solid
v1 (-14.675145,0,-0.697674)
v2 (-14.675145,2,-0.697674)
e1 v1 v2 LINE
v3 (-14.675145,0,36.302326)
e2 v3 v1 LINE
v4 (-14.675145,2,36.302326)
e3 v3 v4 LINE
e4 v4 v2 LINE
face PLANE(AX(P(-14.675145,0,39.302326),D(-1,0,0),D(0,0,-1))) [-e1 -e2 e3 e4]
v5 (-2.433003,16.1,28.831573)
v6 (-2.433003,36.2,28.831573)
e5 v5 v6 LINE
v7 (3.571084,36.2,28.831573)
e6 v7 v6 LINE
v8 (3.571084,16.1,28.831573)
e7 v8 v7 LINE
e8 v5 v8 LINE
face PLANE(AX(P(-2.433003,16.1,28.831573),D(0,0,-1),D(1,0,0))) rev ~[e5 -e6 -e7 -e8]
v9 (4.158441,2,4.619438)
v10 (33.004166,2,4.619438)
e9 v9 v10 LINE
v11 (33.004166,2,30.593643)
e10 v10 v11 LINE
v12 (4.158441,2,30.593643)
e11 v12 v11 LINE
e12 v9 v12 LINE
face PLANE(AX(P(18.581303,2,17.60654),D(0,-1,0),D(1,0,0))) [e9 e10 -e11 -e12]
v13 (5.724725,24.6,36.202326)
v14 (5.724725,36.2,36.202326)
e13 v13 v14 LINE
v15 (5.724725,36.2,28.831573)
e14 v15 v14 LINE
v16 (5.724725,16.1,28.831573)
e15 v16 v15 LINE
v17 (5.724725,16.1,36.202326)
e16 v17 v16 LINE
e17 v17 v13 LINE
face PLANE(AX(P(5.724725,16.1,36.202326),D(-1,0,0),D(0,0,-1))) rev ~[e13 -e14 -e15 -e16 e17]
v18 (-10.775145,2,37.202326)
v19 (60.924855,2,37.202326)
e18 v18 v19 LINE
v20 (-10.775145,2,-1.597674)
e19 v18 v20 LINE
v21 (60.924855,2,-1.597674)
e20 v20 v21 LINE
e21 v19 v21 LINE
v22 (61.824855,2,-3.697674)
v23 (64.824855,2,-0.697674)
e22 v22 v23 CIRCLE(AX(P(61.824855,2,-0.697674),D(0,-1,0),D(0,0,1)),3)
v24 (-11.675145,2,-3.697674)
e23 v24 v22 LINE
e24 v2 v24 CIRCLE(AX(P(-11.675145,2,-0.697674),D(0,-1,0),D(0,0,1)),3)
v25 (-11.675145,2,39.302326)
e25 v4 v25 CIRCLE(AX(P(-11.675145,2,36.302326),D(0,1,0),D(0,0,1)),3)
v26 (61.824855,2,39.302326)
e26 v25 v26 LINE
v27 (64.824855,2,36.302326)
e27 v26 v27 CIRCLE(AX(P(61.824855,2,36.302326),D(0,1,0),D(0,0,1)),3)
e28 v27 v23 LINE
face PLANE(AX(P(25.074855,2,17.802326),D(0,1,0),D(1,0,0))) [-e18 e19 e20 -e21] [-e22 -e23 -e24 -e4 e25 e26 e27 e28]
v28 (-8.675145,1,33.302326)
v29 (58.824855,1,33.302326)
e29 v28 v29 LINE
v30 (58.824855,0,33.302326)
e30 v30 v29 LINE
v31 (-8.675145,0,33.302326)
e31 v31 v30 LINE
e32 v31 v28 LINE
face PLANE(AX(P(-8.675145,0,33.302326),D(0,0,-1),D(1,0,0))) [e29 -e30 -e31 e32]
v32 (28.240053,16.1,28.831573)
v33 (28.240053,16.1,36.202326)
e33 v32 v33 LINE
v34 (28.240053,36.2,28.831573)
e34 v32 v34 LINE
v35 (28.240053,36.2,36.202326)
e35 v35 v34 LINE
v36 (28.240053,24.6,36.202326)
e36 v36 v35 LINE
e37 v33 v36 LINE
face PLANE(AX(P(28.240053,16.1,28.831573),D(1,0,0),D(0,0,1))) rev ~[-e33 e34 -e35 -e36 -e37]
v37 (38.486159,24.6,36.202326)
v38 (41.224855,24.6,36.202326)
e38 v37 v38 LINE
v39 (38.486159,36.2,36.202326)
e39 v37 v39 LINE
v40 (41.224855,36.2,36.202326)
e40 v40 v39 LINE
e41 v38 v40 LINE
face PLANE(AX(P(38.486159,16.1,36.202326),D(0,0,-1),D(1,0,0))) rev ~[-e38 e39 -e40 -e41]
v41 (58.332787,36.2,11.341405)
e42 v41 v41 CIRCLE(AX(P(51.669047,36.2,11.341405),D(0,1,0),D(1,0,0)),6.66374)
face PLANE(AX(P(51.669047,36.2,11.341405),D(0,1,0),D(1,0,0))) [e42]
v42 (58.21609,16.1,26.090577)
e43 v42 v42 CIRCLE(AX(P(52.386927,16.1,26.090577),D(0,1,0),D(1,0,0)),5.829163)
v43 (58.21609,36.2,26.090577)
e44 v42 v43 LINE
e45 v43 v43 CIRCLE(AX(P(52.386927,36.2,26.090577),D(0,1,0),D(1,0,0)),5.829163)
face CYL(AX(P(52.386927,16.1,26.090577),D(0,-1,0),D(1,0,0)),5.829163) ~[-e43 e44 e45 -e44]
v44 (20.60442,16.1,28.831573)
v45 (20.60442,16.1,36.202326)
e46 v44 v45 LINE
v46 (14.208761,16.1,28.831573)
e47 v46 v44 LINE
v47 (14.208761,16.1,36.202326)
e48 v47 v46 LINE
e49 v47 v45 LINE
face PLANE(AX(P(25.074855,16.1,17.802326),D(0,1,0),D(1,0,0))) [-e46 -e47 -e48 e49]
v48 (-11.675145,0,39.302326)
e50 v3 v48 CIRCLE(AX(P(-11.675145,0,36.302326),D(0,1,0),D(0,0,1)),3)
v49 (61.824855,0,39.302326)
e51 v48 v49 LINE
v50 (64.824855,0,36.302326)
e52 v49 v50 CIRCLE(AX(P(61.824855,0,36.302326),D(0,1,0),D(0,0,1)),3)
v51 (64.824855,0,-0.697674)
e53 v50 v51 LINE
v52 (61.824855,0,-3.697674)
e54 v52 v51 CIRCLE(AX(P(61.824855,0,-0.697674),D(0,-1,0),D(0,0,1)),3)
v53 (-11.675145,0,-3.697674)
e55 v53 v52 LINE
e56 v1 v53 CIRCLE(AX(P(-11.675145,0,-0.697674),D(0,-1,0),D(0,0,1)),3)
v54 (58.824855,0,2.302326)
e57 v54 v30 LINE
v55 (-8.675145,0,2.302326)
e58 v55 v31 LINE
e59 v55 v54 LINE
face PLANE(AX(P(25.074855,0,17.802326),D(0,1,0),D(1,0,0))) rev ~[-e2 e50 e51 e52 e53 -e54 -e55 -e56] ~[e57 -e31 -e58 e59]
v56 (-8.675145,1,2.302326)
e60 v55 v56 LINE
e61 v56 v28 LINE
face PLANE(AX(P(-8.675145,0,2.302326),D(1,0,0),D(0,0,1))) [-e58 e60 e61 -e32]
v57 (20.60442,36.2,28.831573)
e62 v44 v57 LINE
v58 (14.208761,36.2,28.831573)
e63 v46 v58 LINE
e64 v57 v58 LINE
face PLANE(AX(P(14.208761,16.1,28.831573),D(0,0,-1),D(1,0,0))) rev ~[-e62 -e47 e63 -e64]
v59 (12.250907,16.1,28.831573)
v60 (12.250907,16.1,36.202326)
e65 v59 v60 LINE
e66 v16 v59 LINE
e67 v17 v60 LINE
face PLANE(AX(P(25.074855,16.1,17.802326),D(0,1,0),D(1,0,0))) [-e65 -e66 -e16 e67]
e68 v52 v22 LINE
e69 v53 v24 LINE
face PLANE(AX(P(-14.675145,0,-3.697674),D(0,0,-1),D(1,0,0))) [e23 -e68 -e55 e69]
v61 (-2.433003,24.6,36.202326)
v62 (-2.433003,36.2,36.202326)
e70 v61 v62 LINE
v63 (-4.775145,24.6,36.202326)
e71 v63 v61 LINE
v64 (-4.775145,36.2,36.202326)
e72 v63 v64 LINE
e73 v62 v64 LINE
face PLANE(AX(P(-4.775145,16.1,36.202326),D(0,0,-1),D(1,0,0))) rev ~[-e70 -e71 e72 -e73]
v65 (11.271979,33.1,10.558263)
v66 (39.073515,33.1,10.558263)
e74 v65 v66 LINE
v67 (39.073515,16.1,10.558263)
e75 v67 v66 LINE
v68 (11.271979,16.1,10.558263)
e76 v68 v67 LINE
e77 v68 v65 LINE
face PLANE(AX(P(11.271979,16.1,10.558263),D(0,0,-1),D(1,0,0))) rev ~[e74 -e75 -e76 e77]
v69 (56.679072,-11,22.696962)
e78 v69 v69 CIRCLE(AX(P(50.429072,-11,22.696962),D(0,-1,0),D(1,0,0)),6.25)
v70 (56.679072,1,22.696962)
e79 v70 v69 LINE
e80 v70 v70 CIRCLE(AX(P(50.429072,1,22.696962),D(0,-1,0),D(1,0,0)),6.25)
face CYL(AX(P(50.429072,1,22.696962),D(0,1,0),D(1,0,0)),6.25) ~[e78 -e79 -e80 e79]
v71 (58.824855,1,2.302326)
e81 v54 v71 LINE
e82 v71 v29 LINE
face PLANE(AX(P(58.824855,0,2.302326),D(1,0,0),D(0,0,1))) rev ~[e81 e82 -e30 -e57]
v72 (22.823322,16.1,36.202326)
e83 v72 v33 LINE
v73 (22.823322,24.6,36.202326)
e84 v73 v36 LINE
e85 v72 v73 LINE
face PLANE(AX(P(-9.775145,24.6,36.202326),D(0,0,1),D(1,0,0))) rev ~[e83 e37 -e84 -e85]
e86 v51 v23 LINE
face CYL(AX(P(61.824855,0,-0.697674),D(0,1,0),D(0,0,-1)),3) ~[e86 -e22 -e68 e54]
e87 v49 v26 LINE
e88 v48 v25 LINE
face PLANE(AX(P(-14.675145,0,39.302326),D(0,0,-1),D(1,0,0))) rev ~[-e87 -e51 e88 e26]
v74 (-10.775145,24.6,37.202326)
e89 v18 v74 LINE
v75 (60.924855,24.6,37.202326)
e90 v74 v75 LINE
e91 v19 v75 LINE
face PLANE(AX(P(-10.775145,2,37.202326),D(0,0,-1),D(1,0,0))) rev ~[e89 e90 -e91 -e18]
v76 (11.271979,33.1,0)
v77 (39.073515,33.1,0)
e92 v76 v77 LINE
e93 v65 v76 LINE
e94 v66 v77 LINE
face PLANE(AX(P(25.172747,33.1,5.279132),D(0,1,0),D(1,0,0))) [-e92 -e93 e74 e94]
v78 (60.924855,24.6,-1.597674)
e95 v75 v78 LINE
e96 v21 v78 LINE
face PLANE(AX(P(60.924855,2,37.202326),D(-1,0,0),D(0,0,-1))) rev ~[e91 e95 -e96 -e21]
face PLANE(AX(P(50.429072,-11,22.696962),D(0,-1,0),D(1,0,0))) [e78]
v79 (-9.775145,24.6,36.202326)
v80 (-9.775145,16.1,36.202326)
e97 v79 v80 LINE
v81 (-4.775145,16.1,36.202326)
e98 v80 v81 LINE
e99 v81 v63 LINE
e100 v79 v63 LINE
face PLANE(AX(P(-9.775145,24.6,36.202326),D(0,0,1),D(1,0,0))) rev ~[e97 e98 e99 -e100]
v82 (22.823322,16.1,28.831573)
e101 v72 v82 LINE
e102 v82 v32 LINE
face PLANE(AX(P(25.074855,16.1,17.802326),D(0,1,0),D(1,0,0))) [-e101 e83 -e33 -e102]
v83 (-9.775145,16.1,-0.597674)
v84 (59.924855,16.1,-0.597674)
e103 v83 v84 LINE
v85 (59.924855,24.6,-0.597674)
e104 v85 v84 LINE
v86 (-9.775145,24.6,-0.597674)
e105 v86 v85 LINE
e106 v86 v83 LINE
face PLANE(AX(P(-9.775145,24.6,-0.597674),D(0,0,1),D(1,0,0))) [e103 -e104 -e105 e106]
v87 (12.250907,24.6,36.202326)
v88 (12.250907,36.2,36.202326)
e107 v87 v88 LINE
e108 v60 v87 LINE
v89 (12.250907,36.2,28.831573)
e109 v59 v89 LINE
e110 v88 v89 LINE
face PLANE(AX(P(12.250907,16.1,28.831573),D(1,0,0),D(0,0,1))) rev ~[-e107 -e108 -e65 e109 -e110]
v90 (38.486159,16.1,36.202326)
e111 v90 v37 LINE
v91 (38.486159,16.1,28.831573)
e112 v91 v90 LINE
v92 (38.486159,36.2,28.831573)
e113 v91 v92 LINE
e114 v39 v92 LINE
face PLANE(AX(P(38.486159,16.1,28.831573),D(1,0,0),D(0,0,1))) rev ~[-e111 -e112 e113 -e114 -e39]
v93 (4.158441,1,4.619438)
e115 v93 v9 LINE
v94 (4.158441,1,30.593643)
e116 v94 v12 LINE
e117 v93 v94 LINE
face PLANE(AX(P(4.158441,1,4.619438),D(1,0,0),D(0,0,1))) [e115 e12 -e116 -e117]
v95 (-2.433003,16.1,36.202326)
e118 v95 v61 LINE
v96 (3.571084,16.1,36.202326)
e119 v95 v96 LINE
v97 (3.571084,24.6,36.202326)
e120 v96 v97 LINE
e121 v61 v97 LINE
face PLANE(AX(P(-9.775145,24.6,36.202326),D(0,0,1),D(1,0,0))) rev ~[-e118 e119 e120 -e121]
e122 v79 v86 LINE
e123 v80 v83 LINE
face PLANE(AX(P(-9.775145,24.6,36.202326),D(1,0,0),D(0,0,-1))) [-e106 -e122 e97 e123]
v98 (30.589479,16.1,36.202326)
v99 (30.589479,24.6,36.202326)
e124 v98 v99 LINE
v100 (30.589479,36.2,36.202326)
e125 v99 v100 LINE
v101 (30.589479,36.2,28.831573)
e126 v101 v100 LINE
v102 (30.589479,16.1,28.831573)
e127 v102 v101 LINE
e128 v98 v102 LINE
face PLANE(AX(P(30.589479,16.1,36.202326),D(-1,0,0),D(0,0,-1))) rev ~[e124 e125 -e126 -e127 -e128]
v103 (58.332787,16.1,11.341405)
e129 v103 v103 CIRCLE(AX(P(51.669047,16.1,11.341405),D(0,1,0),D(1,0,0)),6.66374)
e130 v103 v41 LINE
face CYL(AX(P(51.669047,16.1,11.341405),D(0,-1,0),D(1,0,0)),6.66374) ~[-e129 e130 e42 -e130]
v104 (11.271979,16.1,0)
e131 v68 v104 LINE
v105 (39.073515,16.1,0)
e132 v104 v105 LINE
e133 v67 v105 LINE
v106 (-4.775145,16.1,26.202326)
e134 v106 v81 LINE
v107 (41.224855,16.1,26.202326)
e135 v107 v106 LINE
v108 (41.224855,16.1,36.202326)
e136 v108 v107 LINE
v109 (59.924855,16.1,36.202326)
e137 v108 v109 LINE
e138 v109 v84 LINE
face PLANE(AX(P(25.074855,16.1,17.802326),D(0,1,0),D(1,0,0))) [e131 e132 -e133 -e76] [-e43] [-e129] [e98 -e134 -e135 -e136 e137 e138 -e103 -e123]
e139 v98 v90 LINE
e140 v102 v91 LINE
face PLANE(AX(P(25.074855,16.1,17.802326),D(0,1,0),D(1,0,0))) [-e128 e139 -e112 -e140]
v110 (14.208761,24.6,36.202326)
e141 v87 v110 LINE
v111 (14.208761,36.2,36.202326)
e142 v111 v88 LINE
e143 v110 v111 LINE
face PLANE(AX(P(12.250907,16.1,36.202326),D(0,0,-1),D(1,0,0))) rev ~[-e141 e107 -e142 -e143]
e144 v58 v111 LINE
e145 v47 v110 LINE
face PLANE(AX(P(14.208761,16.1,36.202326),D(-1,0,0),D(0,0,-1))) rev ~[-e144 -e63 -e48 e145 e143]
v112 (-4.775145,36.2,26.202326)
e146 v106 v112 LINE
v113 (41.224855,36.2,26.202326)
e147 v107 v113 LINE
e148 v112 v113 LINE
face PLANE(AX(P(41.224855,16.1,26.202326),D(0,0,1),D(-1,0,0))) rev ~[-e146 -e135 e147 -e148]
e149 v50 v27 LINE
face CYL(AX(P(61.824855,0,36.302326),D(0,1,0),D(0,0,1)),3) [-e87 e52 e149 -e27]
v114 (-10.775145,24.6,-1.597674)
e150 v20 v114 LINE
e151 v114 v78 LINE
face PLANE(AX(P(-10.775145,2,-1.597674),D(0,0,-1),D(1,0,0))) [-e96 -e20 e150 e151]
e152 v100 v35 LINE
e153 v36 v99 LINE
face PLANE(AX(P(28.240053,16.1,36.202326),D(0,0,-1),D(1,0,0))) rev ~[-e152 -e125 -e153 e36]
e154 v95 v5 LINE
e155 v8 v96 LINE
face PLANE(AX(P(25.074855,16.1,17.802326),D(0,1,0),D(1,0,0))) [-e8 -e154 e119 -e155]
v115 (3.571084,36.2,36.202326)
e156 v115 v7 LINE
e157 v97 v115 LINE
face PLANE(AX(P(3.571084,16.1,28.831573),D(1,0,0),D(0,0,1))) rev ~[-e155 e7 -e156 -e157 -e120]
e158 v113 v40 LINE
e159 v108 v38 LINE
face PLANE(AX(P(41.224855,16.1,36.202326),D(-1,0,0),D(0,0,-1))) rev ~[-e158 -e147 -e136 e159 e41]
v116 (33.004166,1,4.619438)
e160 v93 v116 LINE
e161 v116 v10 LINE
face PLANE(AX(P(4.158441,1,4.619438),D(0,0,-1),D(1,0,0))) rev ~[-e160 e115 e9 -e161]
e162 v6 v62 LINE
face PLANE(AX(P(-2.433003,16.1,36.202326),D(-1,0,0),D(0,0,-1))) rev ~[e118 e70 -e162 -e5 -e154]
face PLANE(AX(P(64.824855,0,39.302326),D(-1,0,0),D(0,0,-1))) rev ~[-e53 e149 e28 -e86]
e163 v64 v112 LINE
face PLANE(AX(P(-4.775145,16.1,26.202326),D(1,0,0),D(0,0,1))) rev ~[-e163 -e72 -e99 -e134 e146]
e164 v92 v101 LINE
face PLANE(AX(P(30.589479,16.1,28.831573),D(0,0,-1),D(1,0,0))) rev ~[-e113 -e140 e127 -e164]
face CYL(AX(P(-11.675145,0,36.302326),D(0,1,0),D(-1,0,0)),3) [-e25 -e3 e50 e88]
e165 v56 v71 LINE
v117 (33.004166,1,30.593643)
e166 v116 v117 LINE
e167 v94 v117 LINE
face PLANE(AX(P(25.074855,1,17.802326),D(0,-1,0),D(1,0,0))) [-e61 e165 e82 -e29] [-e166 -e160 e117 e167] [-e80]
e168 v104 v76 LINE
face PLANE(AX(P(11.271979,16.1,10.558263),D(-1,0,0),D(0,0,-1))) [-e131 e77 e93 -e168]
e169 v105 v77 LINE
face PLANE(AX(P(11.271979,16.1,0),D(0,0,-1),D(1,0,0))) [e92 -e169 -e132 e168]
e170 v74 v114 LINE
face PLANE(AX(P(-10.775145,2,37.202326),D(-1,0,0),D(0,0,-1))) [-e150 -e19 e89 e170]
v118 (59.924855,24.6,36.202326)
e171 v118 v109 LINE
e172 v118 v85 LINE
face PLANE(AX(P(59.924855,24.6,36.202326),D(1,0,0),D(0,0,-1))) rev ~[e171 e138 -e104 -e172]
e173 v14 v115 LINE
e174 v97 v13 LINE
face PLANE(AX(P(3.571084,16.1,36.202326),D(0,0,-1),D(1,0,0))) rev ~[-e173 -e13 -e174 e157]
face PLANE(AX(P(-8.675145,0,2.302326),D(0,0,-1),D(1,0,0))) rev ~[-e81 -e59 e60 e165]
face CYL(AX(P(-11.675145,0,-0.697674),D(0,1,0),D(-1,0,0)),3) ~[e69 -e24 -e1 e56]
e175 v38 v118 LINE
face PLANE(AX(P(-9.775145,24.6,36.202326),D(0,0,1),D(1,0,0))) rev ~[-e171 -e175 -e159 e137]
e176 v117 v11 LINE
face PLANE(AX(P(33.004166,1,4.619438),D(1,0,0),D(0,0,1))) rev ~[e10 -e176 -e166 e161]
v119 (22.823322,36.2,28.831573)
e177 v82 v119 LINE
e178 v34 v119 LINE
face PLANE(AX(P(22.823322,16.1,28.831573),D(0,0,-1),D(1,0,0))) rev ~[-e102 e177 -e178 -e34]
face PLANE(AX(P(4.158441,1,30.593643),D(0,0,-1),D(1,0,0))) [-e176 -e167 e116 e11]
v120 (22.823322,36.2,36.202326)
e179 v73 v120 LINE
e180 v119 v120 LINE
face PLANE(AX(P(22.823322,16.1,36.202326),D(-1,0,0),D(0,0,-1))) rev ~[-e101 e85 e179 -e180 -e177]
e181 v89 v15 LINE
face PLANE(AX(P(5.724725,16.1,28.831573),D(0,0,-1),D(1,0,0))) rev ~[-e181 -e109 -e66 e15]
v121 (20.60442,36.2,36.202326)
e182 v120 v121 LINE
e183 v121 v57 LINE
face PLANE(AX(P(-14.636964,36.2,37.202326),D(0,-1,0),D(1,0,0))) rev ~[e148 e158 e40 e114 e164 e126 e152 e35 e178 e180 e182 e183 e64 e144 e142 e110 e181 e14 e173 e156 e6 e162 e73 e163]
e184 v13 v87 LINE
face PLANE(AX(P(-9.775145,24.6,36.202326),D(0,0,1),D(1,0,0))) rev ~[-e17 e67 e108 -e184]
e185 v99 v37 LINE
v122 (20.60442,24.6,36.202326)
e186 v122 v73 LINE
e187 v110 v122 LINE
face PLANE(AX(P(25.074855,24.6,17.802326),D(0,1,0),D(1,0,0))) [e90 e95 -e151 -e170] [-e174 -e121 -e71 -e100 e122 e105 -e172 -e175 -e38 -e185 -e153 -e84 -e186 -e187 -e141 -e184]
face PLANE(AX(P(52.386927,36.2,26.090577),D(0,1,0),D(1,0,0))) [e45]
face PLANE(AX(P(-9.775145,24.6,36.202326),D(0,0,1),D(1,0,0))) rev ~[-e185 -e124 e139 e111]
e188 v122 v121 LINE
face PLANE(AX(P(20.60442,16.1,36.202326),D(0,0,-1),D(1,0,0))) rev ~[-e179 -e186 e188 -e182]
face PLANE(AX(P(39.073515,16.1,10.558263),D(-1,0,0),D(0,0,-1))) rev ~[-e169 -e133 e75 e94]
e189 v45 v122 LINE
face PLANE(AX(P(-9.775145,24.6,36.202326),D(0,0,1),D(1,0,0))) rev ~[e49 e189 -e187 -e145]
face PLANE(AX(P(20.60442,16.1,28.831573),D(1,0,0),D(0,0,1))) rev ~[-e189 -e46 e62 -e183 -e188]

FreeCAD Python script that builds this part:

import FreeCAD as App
import Part
import Sketcher
from FreeCAD import Vector
Q = App.Units.Quantity


def edges_at(feature, points):
    """Names of the edges that pass closest to the given points."""
    edges = feature.Shape.Edges
    near = lambda p: min(range(len(edges)), key=lambda i: edges[i].distToShape(Part.Vertex(*p))[0])
    return sorted({f"Edge{near(p) + 1}" for p in points})

doc = App.newDocument("Part")
params = doc.addObject("Spreadsheet::Sheet", "Params")
for row, (alias, value) in enumerate([
    ("sketch1_height", "43 mm"),
    ("sketch1_width", "79.5 mm"),
    ("pad1_length", "2 mm"),
    ("sketch2_width", "71.7 mm"),
    ("sketch2_height", "38.8 mm"),
    ("pad2_length", "22.6 mm"),
    ("sketch3_width", "69.7 mm"),
    ("sketch3_height", "36.8 mm"),
    ("pocket1_length", "8.5 mm"),
    ("sketch4_width", "46 mm"),
    ("sketch4_height", "10 mm"),
    ("pad3_length", "22.6 mm"),
    ("pocket2_length", "22.6 mm"),
    ("pad4_length", "20.1 mm"),
    ("fillet_radius", "3 mm"),
    ("pad5_length", "17 mm"),
    ("sketch8_height", "31 mm"),
    ("sketch8_width", "67.5 mm"),
    ("pocket3_length", "1 mm"),
    ("pocket4_length", "1 mm"),
    ("sketch10_diameter", "12.5 mm"),
    ("pad6_length", "12 mm"),
], start=1):
    params.set(f"A{row}", alias)
    params.set(f"B{row}", "=" + value)
    params.setAlias(f"B{row}", alias)

body = doc.addObject("PartDesign::Body", "Body")

sketch1 = body.newObject("Sketcher::SketchObject", "Sketch")
sketch1.AttachmentSupport = (doc.getObject("XZ_Plane"), [""])
sketch1.MapMode = "FlatFace"
sketch1.addGeometry(Part.LineSegment(Vector(-15, -4, 0), Vector(-15, 39, 0)), False)
sketch1.addGeometry(Part.LineSegment(Vector(-15, 39, 0), Vector(65, 39, 0)), False)
sketch1.addGeometry(Part.LineSegment(Vector(65, 39, 0), Vector(65, -4, 0)), False)
sketch1.addGeometry(Part.LineSegment(Vector(65, -4, 0), Vector(-15, -4, 0)), False)
sketch1.addConstraint(Sketcher.Constraint("Coincident", 0, 2, 1, 1))
sketch1.addConstraint(Sketcher.Constraint("Coincident", 1, 2, 2, 1))
sketch1.addConstraint(Sketcher.Constraint("Coincident", 2, 2, 3, 1))
sketch1.addConstraint(Sketcher.Constraint("Coincident", 3, 2, 0, 1))
sketch1.addConstraint(Sketcher.Constraint("Vertical", 0))
sketch1.addConstraint(Sketcher.Constraint("Horizontal", 1))
sketch1.addConstraint(Sketcher.Constraint("Vertical", 2))
sketch1.addConstraint(Sketcher.Constraint("Horizontal", 3))
sketch1.addConstraint(Sketcher.Constraint("DistanceY", 0, 1, 0, 2, Q("43 mm")))
sketch1.addConstraint(Sketcher.Constraint("DistanceX", 1, 1, 1, 2, Q("79.5 mm")))
sketch1.addConstraint(Sketcher.Constraint("DistanceX", 0, 2, -1, 1, Q("14.675145 mm")))
sketch1.addConstraint(Sketcher.Constraint("DistanceY", -1, 1, 0, 2, Q("39.302326 mm")))
sketch1.setExpression("Constraints[8]", "Params.sketch1_height")
sketch1.setExpression("Constraints[9]", "Params.sketch1_width")
pad1 = body.newObject("PartDesign::Pad", "Pad")
pad1.Profile = sketch1
pad1.setExpression("Length", "Params.pad1_length")
pad1.Reversed = True

sketch2 = body.newObject("Sketcher::SketchObject", "Sketch001")
sketch2.AttachmentSupport = (doc.getObject("XZ_Plane"), [""])
sketch2.MapMode = "FlatFace"
sketch2.AttachmentOffset = App.Placement(Vector(0, 0, -2), App.Rotation())
sketch2.addGeometry(Part.LineSegment(Vector(-11, -2, 0), Vector(-11, 37, 0)), False)
sketch2.addGeometry(Part.LineSegment(Vector(-11, 37, 0), Vector(61, 37, 0)), False)
sketch2.addGeometry(Part.LineSegment(Vector(61, 37, 0), Vector(61, -2, 0)), False)
sketch2.addGeometry(Part.LineSegment(Vector(61, -2, 0), Vector(-11, -2, 0)), False)
sketch2.addConstraint(Sketcher.Constraint("Coincident", 0, 2, 1, 1))
sketch2.addConstraint(Sketcher.Constraint("Coincident", 1, 2, 2, 1))
sketch2.addConstraint(Sketcher.Constraint("Coincident", 2, 2, 3, 1))
sketch2.addConstraint(Sketcher.Constraint("Coincident", 3, 2, 0, 1))
sketch2.addConstraint(Sketcher.Constraint("Vertical", 0))
sketch2.addConstraint(Sketcher.Constraint("Horizontal", 1))
sketch2.addConstraint(Sketcher.Constraint("Vertical", 2))
sketch2.addConstraint(Sketcher.Constraint("Horizontal", 3))
sketch2.addConstraint(Sketcher.Constraint("DistanceX", 1, 1, 1, 2, Q("71.7 mm")))
sketch2.addConstraint(Sketcher.Constraint("DistanceY", 0, 1, 0, 2, Q("38.8 mm")))
sketch2.addConstraint(Sketcher.Constraint("DistanceX", 0, 2, -1, 1, Q("10.775145 mm")))
sketch2.addConstraint(Sketcher.Constraint("DistanceY", -1, 1, 0, 2, Q("37.202326 mm")))
sketch2.setExpression("Constraints[8]", "Params.sketch2_width")
sketch2.setExpression("Constraints[9]", "Params.sketch2_height")
pad2 = body.newObject("PartDesign::Pad", "Pad001")
pad2.Profile = sketch2
pad2.setExpression("Length", "Params.pad2_length")
pad2.Reversed = True

sketch3 = body.newObject("Sketcher::SketchObject", "Sketch002")
sketch3.AttachmentSupport = (doc.getObject("XZ_Plane"), [""])
sketch3.MapMode = "FlatFace"
sketch3.AttachmentOffset = App.Placement(Vector(0, 0, -24.6), App.Rotation())
sketch3.addGeometry(Part.LineSegment(Vector(-10, -1, 0), Vector(-10, 36, 0)), False)
sketch3.addGeometry(Part.LineSegment(Vector(-10, 36, 0), Vector(60, 36, 0)), False)
sketch3.addGeometry(Part.LineSegment(Vector(60, 36, 0), Vector(60, -1, 0)), False)
sketch3.addGeometry(Part.LineSegment(Vector(60, -1, 0), Vector(-10, -1, 0)), False)
sketch3.addConstraint(Sketcher.Constraint("Coincident", 0, 2, 1, 1))
sketch3.addConstraint(Sketcher.Constraint("Coincident", 1, 2, 2, 1))
sketch3.addConstraint(Sketcher.Constraint("Coincident", 2, 2, 3, 1))
sketch3.addConstraint(Sketcher.Constraint("Coincident", 3, 2, 0, 1))
sketch3.addConstraint(Sketcher.Constraint("Vertical", 0))
sketch3.addConstraint(Sketcher.Constraint("Horizontal", 1))
sketch3.addConstraint(Sketcher.Constraint("Vertical", 2))
sketch3.addConstraint(Sketcher.Constraint("Horizontal", 3))
sketch3.addConstraint(Sketcher.Constraint("DistanceX", 1, 1, 1, 2, Q("69.7 mm")))
sketch3.addConstraint(Sketcher.Constraint("DistanceY", 0, 1, 0, 2, Q("36.8 mm")))
sketch3.addConstraint(Sketcher.Constraint("DistanceX", 0, 2, -1, 1, Q("9.775145 mm")))
sketch3.addConstraint(Sketcher.Constraint("DistanceY", -1, 1, 0, 2, Q("36.202326 mm")))
sketch3.setExpression("Constraints[8]", "Params.sketch3_width")
sketch3.setExpression("Constraints[9]", "Params.sketch3_height")
pocket1 = body.newObject("PartDesign::Pocket", "Pocket")
pocket1.Profile = sketch3
pocket1.setExpression("Length", "Params.pocket1_length")
pocket1.Reversed = True

sketch4 = body.newObject("Sketcher::SketchObject", "Sketch003")
sketch4.AttachmentSupport = (doc.getObject("XZ_Plane"), [""])
sketch4.MapMode = "FlatFace"
sketch4.AttachmentOffset = App.Placement(Vector(0, 0, -16.1), App.Rotation())
sketch4.addGeometry(Part.LineSegment(Vector(41.2, 26.2, 0), Vector(-4.8, 26.2, 0)), False)
sketch4.addGeometry(Part.LineSegment(Vector(-4.8, 26.2, 0), Vector(-4.8, 36.2, 0)), False)
sketch4.addGeometry(Part.LineSegment(Vector(-4.8, 36.2, 0), Vector(-2.4, 36.2, 0)), False)
sketch4.addGeometry(Part.LineSegment(Vector(-2.4, 36.2, 0), Vector(-2.4, 28.8, 0)), False)
sketch4.addGeometry(Part.LineSegment(Vector(-2.4, 28.8, 0), Vector(3.6, 28.8, 0)), False)
sketch4.addGeometry(Part.LineSegment(Vector(3.6, 28.8, 0), Vector(3.6, 36.2, 0)), False)
sketch4.addGeometry(Part.LineSegment(Vector(3.6, 36.2, 0), Vector(5.7, 36.2, 0)), False)
sketch4.addGeometry(Part.LineSegment(Vector(5.7, 36.2, 0), Vector(5.7, 28.8, 0)), False)
sketch4.addGeometry(Part.LineSegment(Vector(5.7, 28.8, 0), Vector(12.3, 28.8, 0)), False)
sketch4.addGeometry(Part.LineSegment(Vector(12.3, 28.8, 0), Vector(12.3, 36.2, 0)), False)
sketch4.addGeometry(Part.LineSegment(Vector(12.3, 36.2, 0), Vector(14.2, 36.2, 0)), False)
sketch4.addGeometry(Part.LineSegment(Vector(14.2, 36.2, 0), Vector(14.2, 28.8, 0)), False)
sketch4.addGeometry(Part.LineSegment(Vector(14.2, 28.8, 0), Vector(20.6, 28.8, 0)), False)
sketch4.addGeometry(Part.LineSegment(Vector(20.6, 28.8, 0), Vector(20.6, 36.2, 0)), False)
sketch4.addGeometry(Part.LineSegment(Vector(20.6, 36.2, 0), Vector(22.8, 36.2, 0)), False)
sketch4.addGeometry(Part.LineSegment(Vector(22.8, 36.2, 0), Vector(22.8, 28.8, 0)), False)
sketch4.addGeometry(Part.LineSegment(Vector(22.8, 28.8, 0), Vector(28.2, 28.8, 0)), False)
sketch4.addGeometry(Part.LineSegment(Vector(28.2, 28.8, 0), Vector(28.2, 36.2, 0)), False)
sketch4.addGeometry(Part.LineSegment(Vector(28.2, 36.2, 0), Vector(30.6, 36.2, 0)), False)
sketch4.addGeometry(Part.LineSegment(Vector(30.6, 36.2, 0), Vector(30.6, 28.8, 0)), False)
sketch4.addGeometry(Part.LineSegment(Vector(30.6, 28.8, 0), Vector(38.5, 28.8, 0)), False)
sketch4.addGeometry(Part.LineSegment(Vector(38.5, 28.8, 0), Vector(38.5, 36.2, 0)), False)
sketch4.addGeometry(Part.LineSegment(Vector(38.5, 36.2, 0), Vector(41.2, 36.2, 0)), False)
sketch4.addGeometry(Part.LineSegment(Vector(41.2, 36.2, 0), Vector(41.2, 26.2, 0)), False)
sketch4.addConstraint(Sketcher.Constraint("Coincident", 0, 2, 1, 1))
sketch4.addConstraint(Sketcher.Constraint("Coincident", 1, 2, 2, 1))
sketch4.addConstraint(Sketcher.Constraint("Coincident", 2, 2, 3, 1))
sketch4.addConstraint(Sketcher.Constraint("Coincident", 3, 2, 4, 1))
sketch4.addConstraint(Sketcher.Constraint("Coincident", 4, 2, 5, 1))
sketch4.addConstraint(Sketcher.Constraint("Coincident", 5, 2, 6, 1))
sketch4.addConstraint(Sketcher.Constraint("Coincident", 6, 2, 7, 1))
sketch4.addConstraint(Sketcher.Constraint("Coincident", 7, 2, 8, 1))
sketch4.addConstraint(Sketcher.Constraint("Coincident", 8, 2, 9, 1))
sketch4.addConstraint(Sketcher.Constraint("Coincident", 9, 2, 10, 1))
sketch4.addConstraint(Sketcher.Constraint("Coincident", 10, 2, 11, 1))
sketch4.addConstraint(Sketcher.Constraint("Coincident", 11, 2, 12, 1))
sketch4.addConstraint(Sketcher.Constraint("Coincident", 12, 2, 13, 1))
sketch4.addConstraint(Sketcher.Constraint("Coincident", 13, 2, 14, 1))
sketch4.addConstraint(Sketcher.Constraint("Coincident", 14, 2, 15, 1))
sketch4.addConstraint(Sketcher.Constraint("Coincident", 15, 2, 16, 1))
sketch4.addConstraint(Sketcher.Constraint("Coincident", 16, 2, 17, 1))
sketch4.addConstraint(Sketcher.Constraint("Coincident", 17, 2, 18, 1))
sketch4.addConstraint(Sketcher.Constraint("Coincident", 18, 2, 19, 1))
sketch4.addConstraint(Sketcher.Constraint("Coincident", 19, 2, 20, 1))
sketch4.addConstraint(Sketcher.Constraint("Coincident", 20, 2, 21, 1))
sketch4.addConstraint(Sketcher.Constraint("Coincident", 21, 2, 22, 1))
sketch4.addConstraint(Sketcher.Constraint("Coincident", 22, 2, 23, 1))
sketch4.addConstraint(Sketcher.Constraint("Coincident", 23, 2, 0, 1))
sketch4.addConstraint(Sketcher.Constraint("Horizontal", 0))
sketch4.addConstraint(Sketcher.Constraint("Vertical", 1))
sketch4.addConstraint(Sketcher.Constraint("Horizontal", 2))
sketch4.addConstraint(Sketcher.Constraint("Vertical", 3))
sketch4.addConstraint(Sketcher.Constraint("Horizontal", 4))
sketch4.addConstraint(Sketcher.Constraint("Vertical", 5))
sketch4.addConstraint(Sketcher.Constraint("Horizontal", 6))
sketch4.addConstraint(Sketcher.Constraint("Vertical", 7))
sketch4.addConstraint(Sketcher.Constraint("Horizontal", 8))
sketch4.addConstraint(Sketcher.Constraint("Vertical", 9))
sketch4.addConstraint(Sketcher.Constraint("Horizontal", 10))
sketch4.addConstraint(Sketcher.Constraint("Vertical", 11))
sketch4.addConstraint(Sketcher.Constraint("Horizontal", 12))
sketch4.addConstraint(Sketcher.Constraint("Vertical", 13))
sketch4.addConstraint(Sketcher.Constraint("Horizontal", 14))
sketch4.addConstraint(Sketcher.Constraint("Vertical", 15))
sketch4.addConstraint(Sketcher.Constraint("Horizontal", 16))
sketch4.addConstraint(Sketcher.Constraint("Vertical", 17))
sketch4.addConstraint(Sketcher.Constraint("Horizontal", 18))
sketch4.addConstraint(Sketcher.Constraint("Vertical", 19))
sketch4.addConstraint(Sketcher.Constraint("Horizontal", 20))
sketch4.addConstraint(Sketcher.Constraint("Vertical", 21))
sketch4.addConstraint(Sketcher.Constraint("Horizontal", 22))
sketch4.addConstraint(Sketcher.Constraint("Vertical", 23))
sketch4.addConstraint(Sketcher.Constraint("Horizontal", 2, 2, 5, 2))
sketch4.addConstraint(Sketcher.Constraint("Horizontal", 4, 2, 7, 2))
sketch4.addConstraint(Sketcher.Constraint("Horizontal", 6, 2, 9, 2))
sketch4.addConstraint(Sketcher.Constraint("Horizontal", 8, 2, 11, 2))
sketch4.addConstraint(Sketcher.Constraint("Horizontal", 10, 2, 13, 2))
sketch4.addConstraint(Sketcher.Constraint("Horizontal", 12, 2, 15, 2))
sketch4.addConstraint(Sketcher.Constraint("Horizontal", 14, 2, 17, 2))
sketch4.addConstraint(Sketcher.Constraint("Horizontal", 16, 2, 19, 2))
sketch4.addConstraint(Sketcher.Constraint("Horizontal", 18, 2, 21, 2))
sketch4.addConstraint(Sketcher.Constraint("DistanceX", 0, 2, 0, 1, Q("46 mm")))
sketch4.addConstraint(Sketcher.Constraint("DistanceY", 1, 1, 1, 2, Q("10 mm")))
sketch4.addConstraint(Sketcher.Constraint("DistanceX", 14, 1, 14, 2, Q("2.218902 mm")))
sketch4.addConstraint(Sketcher.Constraint("DistanceX", 6, 1, 6, 2, Q("2.15364 mm")))
sketch4.addConstraint(Sketcher.Constraint("DistanceX", 12, 1, 12, 2, Q("6.395659 mm")))
sketch4.addConstraint(Sketcher.Constraint("DistanceX", 16, 1, 16, 2, Q("5.416731 mm")))
sketch4.addConstraint(Sketcher.Constraint("DistanceX", 20, 1, 20, 2, Q("7.89668 mm")))
sketch4.addConstraint(Sketcher.Constraint("DistanceX", 17, 2, 22, 2, Q("12.984802 mm")))
sketch4.addConstraint(Sketcher.Constraint("DistanceX", 2, 1, 2, 2, Q("2.342142 mm")))
sketch4.addConstraint(Sketcher.Constraint("DistanceX", 4, 1, 4, 2, Q("6.004088 mm")))
sketch4.addConstraint(Sketcher.Constraint("DistanceX", 8, 1, 8, 2, Q("6.526182 mm")))
sketch4.addConstraint(Sketcher.Constraint("DistanceX", 18, 1, 18, 2, Q("2.349426 mm")))
sketch4.addConstraint(Sketcher.Constraint("DistanceY", 3, 2, 3, 1, Q("7.370752 mm")))
sketch4.addConstraint(Sketcher.Constraint("DistanceX", -1, 1, 10, 2, Q("14.208761 mm")))
sketch4.addConstraint(Sketcher.Constraint("DistanceY", -1, 1, 0, 2, Q("26.202326 mm")))
sketch4.setExpression("Constraints[57]", "Params.sketch4_width")
sketch4.setExpression("Constraints[58]", "Params.sketch4_height")
pad3 = body.newObject("PartDesign::Pad", "Pad002")
pad3.Profile = sketch4
pad3.setExpression("Length", "Params.pad3_length")
pad3.Reversed = True

sketch5 = body.newObject("Sketcher::SketchObject", "Sketch004")
sketch5.AttachmentSupport = (doc.getObject("XY_Plane"), [""])
sketch5.MapMode = "FlatFace"
sketch5.AttachmentOffset = App.Placement(Vector(0, 0, 37.202326), App.Rotation())
sketch5.addGeometry(Part.LineSegment(Vector(-15, 45, 0), Vector(-15, 36, 0)), False)
sketch5.addGeometry(Part.LineSegment(Vector(-15, 36, 0), Vector(53, 36, 0)), False)
sketch5.addGeometry(Part.LineSegment(Vector(53, 36, 0), Vector(53, 45, 0)), False)
sketch5.addGeometry(Part.LineSegment(Vector(53, 45, 0), Vector(-15, 45, 0)), False)
sketch5.addConstraint(Sketcher.Constraint("Coincident", 0, 2, 1, 1))
sketch5.addConstraint(Sketcher.Constraint("Coincident", 1, 2, 2, 1))
sketch5.addConstraint(Sketcher.Constraint("Coincident", 2, 2, 3, 1))
sketch5.addConstraint(Sketcher.Constraint("Coincident", 3, 2, 0, 1))
sketch5.addConstraint(Sketcher.Constraint("Vertical", 0))
sketch5.addConstraint(Sketcher.Constraint("Horizontal", 1))
sketch5.addConstraint(Sketcher.Constraint("Vertical", 2))
sketch5.addConstraint(Sketcher.Constraint("Horizontal", 3))
sketch5.addConstraint(Sketcher.Constraint("DistanceY", -1, 1, 0, 2, Q("36.2 mm")))
sketch5.addConstraint(Sketcher.Constraint("DistanceY", 0, 2, 0, 1, Q("8.94087 mm")))
sketch5.addConstraint(Sketcher.Constraint("DistanceX", 1, 1, 1, 2, Q("67.219676 mm")))
sketch5.addConstraint(Sketcher.Constraint("DistanceX", 0, 2, -1, 1, Q("14.636964 mm")))
pocket2 = body.newObject("PartDesign::Pocket", "Pocket001")
pocket2.Profile = sketch5
pocket2.setExpression("Length", "Params.pocket2_length")

sketch6 = body.newObject("Sketcher::SketchObject", "Sketch005")
sketch6.AttachmentSupport = (doc.getObject("XZ_Plane"), [""])
sketch6.MapMode = "FlatFace"
sketch6.AttachmentOffset = App.Placement(Vector(0, 0, -16.1), App.Rotation())
sketch6.addGeometry(Part.Circle(Vector(52, 11, 0), Vector(0, 0, 1), 7), False)
sketch6.addGeometry(Part.Circle(Vector(52, 26, 0), Vector(0, 0, 1), 6), False)
sketch6.addConstraint(Sketcher.Constraint("Diameter", 0, Q("13.32748 mm")))
sketch6.addConstraint(Sketcher.Constraint("Diameter", 1, Q("11.658326 mm")))
sketch6.addConstraint(Sketcher.Constraint("DistanceX", 0, 3, 1, 3, Q("0.71788 mm")))
sketch6.addConstraint(Sketcher.Constraint("DistanceY", 0, 3, 1, 3, Q("14.749172 mm")))
sketch6.addConstraint(Sketcher.Constraint("DistanceX", -1, 1, 0, 3, Q("51.669047 mm")))
sketch6.addConstraint(Sketcher.Constraint("DistanceY", -1, 1, 0, 3, Q("11.341405 mm")))
pad4 = body.newObject("PartDesign::Pad", "Pad003")
pad4.Profile = sketch6
pad4.setExpression("Length", "Params.pad4_length")
pad4.Reversed = True
doc.recompute()

fillet = body.newObject("PartDesign::Fillet", "Fillet")
fillet.Base = (pad4, edges_at(pad4, [
    (-14.675, 1, -3.698),
    (64.825, 1, -3.698),
    (64.825, 1, 39.302),
    (-14.675, 1, 39.302),
]))
fillet.setExpression("Radius", "Params.fillet_radius")

sketch7 = body.newObject("Sketcher::SketchObject", "Sketch006")
sketch7.AttachmentSupport = (doc.getObject("XZ_Plane"), [""])
sketch7.MapMode = "FlatFace"
sketch7.AttachmentOffset = App.Placement(Vector(0, 0, -16.1), App.Rotation())
sketch7.addGeometry(Part.LineSegment(Vector(11, 0, 0), Vector(11, 11, 0)), False)
sketch7.addGeometry(Part.LineSegment(Vector(11, 11, 0), Vector(39, 11, 0)), False)
sketch7.addGeometry(Part.LineSegment(Vector(39, 11, 0), Vector(39, 0, 0)), False)
sketch7.addGeometry(Part.LineSegment(Vector(39, 0, 0), Vector(11, 0, 0)), False)
sketch7.addConstraint(Sketcher.Constraint("Coincident", 0, 2, 1, 1))
sketch7.addConstraint(Sketcher.Constraint("Coincident", 1, 2, 2, 1))
sketch7.addConstraint(Sketcher.Constraint("Coincident", 2, 2, 3, 1))
sketch7.addConstraint(Sketcher.Constraint("Coincident", 3, 2, 0, 1))
sketch7.addConstraint(Sketcher.Constraint("Vertical", 0))
sketch7.addConstraint(Sketcher.Constraint("Horizontal", 1))
sketch7.addConstraint(Sketcher.Constraint("Vertical", 2))
sketch7.addConstraint(Sketcher.Constraint("Horizontal", 3))
sketch7.addConstraint(Sketcher.Constraint("PointOnObject", 2, 2, -1))
sketch7.addConstraint(Sketcher.Constraint("DistanceX", 1, 1, 1, 2, Q("27.801536 mm")))
sketch7.addConstraint(Sketcher.Constraint("DistanceY", 0, 1, 0, 2, Q("10.558263 mm")))
sketch7.addConstraint(Sketcher.Constraint("DistanceX", -1, 1, 0, 2, Q("11.271979 mm")))
pad5 = body.newObject("PartDesign::Pad", "Pad004")
pad5.Profile = sketch7
pad5.setExpression("Length", "Params.pad5_length")
pad5.Reversed = True

sketch8 = body.newObject("Sketcher::SketchObject", "Sketch007")
sketch8.AttachmentSupport = (doc.getObject("XZ_Plane"), [""])
sketch8.MapMode = "FlatFace"
sketch8.addGeometry(Part.LineSegment(Vector(-9, 33, 0), Vector(-9, 2, 0)), False)
sketch8.addGeometry(Part.LineSegment(Vector(-9, 2, 0), Vector(59, 2, 0)), False)
sketch8.addGeometry(Part.LineSegment(Vector(59, 2, 0), Vector(59, 33, 0)), False)
sketch8.addGeometry(Part.LineSegment(Vector(59, 33, 0), Vector(-9, 33, 0)), False)
sketch8.addConstraint(Sketcher.Constraint("Coincident", 0, 2, 1, 1))
sketch8.addConstraint(Sketcher.Constraint("Coincident", 1, 2, 2, 1))
sketch8.addConstraint(Sketcher.Constraint("Coincident", 2, 2, 3, 1))
sketch8.addConstraint(Sketcher.Constraint("Coincident", 3, 2, 0, 1))
sketch8.addConstraint(Sketcher.Constraint("Vertical", 0))
sketch8.addConstraint(Sketcher.Constraint("Horizontal", 1))
sketch8.addConstraint(Sketcher.Constraint("Vertical", 2))
sketch8.addConstraint(Sketcher.Constraint("Horizontal", 3))
sketch8.addConstraint(Sketcher.Constraint("DistanceY", 0, 2, 0, 1, Q("31 mm")))
sketch8.addConstraint(Sketcher.Constraint("DistanceX", 1, 1, 1, 2, Q("67.5 mm")))
sketch8.addConstraint(Sketcher.Constraint("DistanceX", 0, 2, -1, 1, Q("8.675145 mm")))
sketch8.addConstraint(Sketcher.Constraint("DistanceY", -1, 1, 0, 2, Q("2.302326 mm")))
sketch8.setExpression("Constraints[8]", "Params.sketch8_height")
sketch8.setExpression("Constraints[9]", "Params.sketch8_width")
pocket3 = body.newObject("PartDesign::Pocket", "Pocket002")
pocket3.Profile = sketch8
pocket3.setExpression("Length", "Params.pocket3_length")

sketch9 = body.newObject("Sketcher::SketchObject", "Sketch008")
sketch9.AttachmentSupport = (doc.getObject("XZ_Plane"), [""])
sketch9.MapMode = "FlatFace"
sketch9.AttachmentOffset = App.Placement(Vector(0, 0, -1), App.Rotation())
sketch9.addGeometry(Part.LineSegment(Vector(4, 31, 0), Vector(4, 5, 0)), False)
sketch9.addGeometry(Part.LineSegment(Vector(4, 5, 0), Vector(33, 5, 0)), False)
sketch9.addGeometry(Part.LineSegment(Vector(33, 5, 0), Vector(33, 31, 0)), False)
sketch9.addGeometry(Part.LineSegment(Vector(33, 31, 0), Vector(4, 31, 0)), False)
sketch9.addConstraint(Sketcher.Constraint("Coincident", 0, 2, 1, 1))
sketch9.addConstraint(Sketcher.Constraint("Coincident", 1, 2, 2, 1))
sketch9.addConstraint(Sketcher.Constraint("Coincident", 2, 2, 3, 1))
sketch9.addConstraint(Sketcher.Constraint("Coincident", 3, 2, 0, 1))
sketch9.addConstraint(Sketcher.Constraint("Vertical", 0))
sketch9.addConstraint(Sketcher.Constraint("Horizontal", 1))
sketch9.addConstraint(Sketcher.Constraint("Vertical", 2))
sketch9.addConstraint(Sketcher.Constraint("Horizontal", 3))
sketch9.addConstraint(Sketcher.Constraint("DistanceX", 1, 1, 1, 2, Q("28.845725 mm")))
sketch9.addConstraint(Sketcher.Constraint("DistanceY", 0, 2, 0, 1, Q("25.974205 mm")))
sketch9.addConstraint(Sketcher.Constraint("DistanceX", -1, 1, 0, 2, Q("4.158441 mm")))
sketch9.addConstraint(Sketcher.Constraint("DistanceY", -1, 1, 0, 2, Q("4.619438 mm")))
pocket4 = body.newObject("PartDesign::Pocket", "Pocket003")
pocket4.Profile = sketch9
pocket4.setExpression("Length", "Params.pocket4_length")

sketch10 = body.newObject("Sketcher::SketchObject", "Sketch009")
sketch10.AttachmentSupport = (doc.getObject("XZ_Plane"), [""])
sketch10.MapMode = "FlatFace"
sketch10.AttachmentOffset = App.Placement(Vector(0, 0, -1), App.Rotation())
sketch10.addGeometry(Part.Circle(Vector(50, 23, 0), Vector(0, 0, 1), 6), False)
sketch10.addConstraint(Sketcher.Constraint("Diameter", 0, Q("12.5 mm")))
sketch10.addConstraint(Sketcher.Constraint("DistanceX", -1, 1, 0, 3, Q("50.429072 mm")))
sketch10.addConstraint(Sketcher.Constraint("DistanceY", -1, 1, 0, 3, Q("22.696962 mm")))
sketch10.setExpression("Constraints[0]", "Params.sketch10_diameter")
pad6 = body.newObject("PartDesign::Pad", "Pad005")
pad6.Profile = sketch10
pad6.setExpression("Length", "Params.pad6_length")

doc.recompute()
